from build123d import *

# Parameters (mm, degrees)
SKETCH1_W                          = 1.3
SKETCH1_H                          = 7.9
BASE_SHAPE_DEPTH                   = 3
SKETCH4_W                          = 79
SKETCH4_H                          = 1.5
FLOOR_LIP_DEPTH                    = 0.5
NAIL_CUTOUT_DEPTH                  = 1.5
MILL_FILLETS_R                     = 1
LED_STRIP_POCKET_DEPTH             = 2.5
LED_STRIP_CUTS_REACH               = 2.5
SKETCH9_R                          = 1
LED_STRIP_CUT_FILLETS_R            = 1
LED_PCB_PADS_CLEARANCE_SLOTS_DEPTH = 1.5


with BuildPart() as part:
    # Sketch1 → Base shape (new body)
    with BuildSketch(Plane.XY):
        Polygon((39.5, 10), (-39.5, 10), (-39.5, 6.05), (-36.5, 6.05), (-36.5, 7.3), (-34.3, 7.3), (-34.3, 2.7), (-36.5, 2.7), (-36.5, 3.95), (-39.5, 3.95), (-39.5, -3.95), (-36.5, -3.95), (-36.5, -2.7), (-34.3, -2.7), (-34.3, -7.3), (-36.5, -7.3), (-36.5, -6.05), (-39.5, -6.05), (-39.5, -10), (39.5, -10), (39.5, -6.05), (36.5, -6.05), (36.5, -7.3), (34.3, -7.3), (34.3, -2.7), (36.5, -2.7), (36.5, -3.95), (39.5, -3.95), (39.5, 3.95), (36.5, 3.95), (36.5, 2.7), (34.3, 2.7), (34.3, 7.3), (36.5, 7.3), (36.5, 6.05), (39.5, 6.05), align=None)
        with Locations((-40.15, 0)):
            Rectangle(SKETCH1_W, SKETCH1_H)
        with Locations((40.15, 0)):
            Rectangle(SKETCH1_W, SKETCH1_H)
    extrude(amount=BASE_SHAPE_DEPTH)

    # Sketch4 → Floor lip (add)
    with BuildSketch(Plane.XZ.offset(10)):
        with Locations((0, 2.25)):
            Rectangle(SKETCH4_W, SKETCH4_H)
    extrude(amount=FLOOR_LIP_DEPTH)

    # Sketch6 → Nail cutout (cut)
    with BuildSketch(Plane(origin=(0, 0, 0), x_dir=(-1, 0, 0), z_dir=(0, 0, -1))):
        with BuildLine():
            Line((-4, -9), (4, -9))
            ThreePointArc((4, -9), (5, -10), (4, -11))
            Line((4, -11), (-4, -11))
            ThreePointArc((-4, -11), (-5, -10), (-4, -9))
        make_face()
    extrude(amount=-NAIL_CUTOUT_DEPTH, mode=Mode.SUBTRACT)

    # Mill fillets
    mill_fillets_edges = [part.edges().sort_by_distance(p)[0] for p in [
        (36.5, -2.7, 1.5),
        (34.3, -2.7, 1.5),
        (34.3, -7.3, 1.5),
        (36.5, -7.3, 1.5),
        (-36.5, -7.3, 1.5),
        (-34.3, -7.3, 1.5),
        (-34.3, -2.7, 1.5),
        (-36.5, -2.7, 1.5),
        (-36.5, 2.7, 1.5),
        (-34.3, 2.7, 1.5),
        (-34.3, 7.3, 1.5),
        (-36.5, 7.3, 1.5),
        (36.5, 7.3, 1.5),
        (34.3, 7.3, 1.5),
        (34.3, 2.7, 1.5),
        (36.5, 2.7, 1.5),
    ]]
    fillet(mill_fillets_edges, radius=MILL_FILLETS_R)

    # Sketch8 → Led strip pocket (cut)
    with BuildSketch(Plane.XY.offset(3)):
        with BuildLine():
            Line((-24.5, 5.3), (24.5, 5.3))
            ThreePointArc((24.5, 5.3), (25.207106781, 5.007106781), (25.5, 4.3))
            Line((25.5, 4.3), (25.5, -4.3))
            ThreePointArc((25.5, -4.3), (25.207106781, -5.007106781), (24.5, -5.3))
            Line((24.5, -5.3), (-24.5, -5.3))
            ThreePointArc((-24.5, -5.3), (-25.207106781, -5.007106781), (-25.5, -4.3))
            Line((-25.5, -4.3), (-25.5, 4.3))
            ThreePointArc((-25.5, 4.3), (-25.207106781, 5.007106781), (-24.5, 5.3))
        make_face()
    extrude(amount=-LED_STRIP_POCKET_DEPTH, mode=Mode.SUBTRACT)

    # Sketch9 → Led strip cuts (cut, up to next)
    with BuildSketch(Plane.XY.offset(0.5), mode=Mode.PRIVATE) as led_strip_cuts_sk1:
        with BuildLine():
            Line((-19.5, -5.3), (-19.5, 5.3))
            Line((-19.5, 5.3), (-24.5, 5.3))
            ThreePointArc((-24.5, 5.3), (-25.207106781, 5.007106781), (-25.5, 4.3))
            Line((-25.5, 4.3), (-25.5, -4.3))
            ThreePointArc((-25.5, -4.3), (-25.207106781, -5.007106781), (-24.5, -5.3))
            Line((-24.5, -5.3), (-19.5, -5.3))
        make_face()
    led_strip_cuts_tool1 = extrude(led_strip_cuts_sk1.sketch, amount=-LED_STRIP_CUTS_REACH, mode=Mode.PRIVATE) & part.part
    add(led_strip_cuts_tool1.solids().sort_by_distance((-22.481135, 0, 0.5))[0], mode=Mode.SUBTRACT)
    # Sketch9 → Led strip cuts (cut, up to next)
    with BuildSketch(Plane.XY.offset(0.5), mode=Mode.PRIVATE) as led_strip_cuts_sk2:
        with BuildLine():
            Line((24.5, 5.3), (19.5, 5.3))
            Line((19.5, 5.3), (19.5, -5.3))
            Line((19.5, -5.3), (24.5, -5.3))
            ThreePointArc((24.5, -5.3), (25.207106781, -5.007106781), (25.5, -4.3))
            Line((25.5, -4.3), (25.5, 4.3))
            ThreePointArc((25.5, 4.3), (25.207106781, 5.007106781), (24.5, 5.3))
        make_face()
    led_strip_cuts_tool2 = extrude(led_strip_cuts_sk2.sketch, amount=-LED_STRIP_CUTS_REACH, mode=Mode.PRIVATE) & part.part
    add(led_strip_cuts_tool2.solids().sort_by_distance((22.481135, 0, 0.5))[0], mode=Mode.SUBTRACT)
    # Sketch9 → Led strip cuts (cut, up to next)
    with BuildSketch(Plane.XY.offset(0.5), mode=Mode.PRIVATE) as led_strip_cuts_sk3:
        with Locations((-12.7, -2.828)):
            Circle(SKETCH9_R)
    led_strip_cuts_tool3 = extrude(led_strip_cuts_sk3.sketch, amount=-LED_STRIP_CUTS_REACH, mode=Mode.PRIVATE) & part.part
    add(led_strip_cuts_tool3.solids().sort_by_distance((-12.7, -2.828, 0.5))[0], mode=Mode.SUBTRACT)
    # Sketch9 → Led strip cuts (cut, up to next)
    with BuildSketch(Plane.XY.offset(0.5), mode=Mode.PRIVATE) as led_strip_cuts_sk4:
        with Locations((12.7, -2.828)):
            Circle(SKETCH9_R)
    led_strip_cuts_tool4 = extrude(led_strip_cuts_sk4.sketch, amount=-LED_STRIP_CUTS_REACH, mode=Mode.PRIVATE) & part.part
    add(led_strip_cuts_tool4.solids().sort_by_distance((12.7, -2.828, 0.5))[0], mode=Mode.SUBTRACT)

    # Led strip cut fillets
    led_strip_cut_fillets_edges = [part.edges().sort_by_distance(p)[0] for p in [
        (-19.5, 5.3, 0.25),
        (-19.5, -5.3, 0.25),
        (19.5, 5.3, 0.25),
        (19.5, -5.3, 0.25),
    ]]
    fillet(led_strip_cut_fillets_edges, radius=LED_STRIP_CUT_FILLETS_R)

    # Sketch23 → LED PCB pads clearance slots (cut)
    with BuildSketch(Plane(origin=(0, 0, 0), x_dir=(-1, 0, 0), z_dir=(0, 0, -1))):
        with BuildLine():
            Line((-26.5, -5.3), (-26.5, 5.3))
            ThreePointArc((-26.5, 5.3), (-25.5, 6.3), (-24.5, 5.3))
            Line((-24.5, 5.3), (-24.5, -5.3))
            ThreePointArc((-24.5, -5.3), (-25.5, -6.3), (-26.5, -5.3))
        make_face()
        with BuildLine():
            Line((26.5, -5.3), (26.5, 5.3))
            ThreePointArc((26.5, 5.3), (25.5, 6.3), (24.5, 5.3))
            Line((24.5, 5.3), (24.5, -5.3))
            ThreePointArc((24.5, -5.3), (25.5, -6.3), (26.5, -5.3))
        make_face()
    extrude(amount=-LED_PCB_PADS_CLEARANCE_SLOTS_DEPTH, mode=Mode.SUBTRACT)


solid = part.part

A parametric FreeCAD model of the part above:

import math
import FreeCAD as App
import Part
import Sketcher
from FreeCAD import Vector
Q = App.Units.Quantity


def edges_at(feature, points):
    """Names of the edges that pass closest to the given points."""
    edges = feature.Shape.Edges
    near = lambda p: min(range(len(edges)), key=lambda i: edges[i].distToShape(Part.Vertex(*p))[0])
    return sorted({f"Edge{near(p) + 1}" for p in points})

doc = App.newDocument("Part")
body = doc.addObject("PartDesign::Body", "Body")

sketch1 = body.newObject("Sketcher::SketchObject", "Sketch")
sketch1.AttachmentSupport = (doc.getObject("XY_Plane"), [""])
sketch1.MapMode = "FlatFace"
sketch1.addGeometry([
    Part.LineSegment(Vector(39.5, 10, 0), Vector(-39.5, 10, 0)),
    Part.LineSegment(Vector(-39.5, 10, 0), Vector(-39.5, 6, 0)),
    Part.LineSegment(Vector(-39.5, 6, 0), Vector(-36.5, 6, 0)),
    Part.LineSegment(Vector(-36.5, 6, 0), Vector(-36.5, 7.3, 0)),
    Part.LineSegment(Vector(-36.5, 7.3, 0), Vector(-34.3, 7.3, 0)),
    Part.LineSegment(Vector(-34.3, 7.3, 0), Vector(-34.3, 2.7, 0)),
    Part.LineSegment(Vector(-34.3, 2.7, 0), Vector(-36.5, 2.7, 0)),
    Part.LineSegment(Vector(-36.5, 2.7, 0), Vector(-36.5, 4, 0)),
    Part.LineSegment(Vector(-36.5, 4, 0), Vector(-40.8, 4, 0)),
    Part.LineSegment(Vector(-40.8, 4, 0), Vector(-40.8, -4, 0)),
    Part.LineSegment(Vector(-40.8, -4, 0), Vector(-36.5, -4, 0)),
    Part.LineSegment(Vector(-36.5, -4, 0), Vector(-36.5, -2.7, 0)),
    Part.LineSegment(Vector(-36.5, -2.7, 0), Vector(-34.3, -2.7, 0)),
    Part.LineSegment(Vector(-34.3, -2.7, 0), Vector(-34.3, -7.3, 0)),
    Part.LineSegment(Vector(-34.3, -7.3, 0), Vector(-36.5, -7.3, 0)),
    Part.LineSegment(Vector(-36.5, -7.3, 0), Vector(-36.5, -6, 0)),
    Part.LineSegment(Vector(-36.5, -6, 0), Vector(-39.5, -6, 0)),
    Part.LineSegment(Vector(-39.5, -6, 0), Vector(-39.5, -10, 0)),
    Part.LineSegment(Vector(-39.5, -10, 0), Vector(39.5, -10, 0)),
    Part.LineSegment(Vector(39.5, -10, 0), Vector(39.5, -6, 0)),
    Part.LineSegment(Vector(39.5, -6, 0), Vector(36.5, -6, 0)),
    Part.LineSegment(Vector(36.5, -6, 0), Vector(36.5, -7.3, 0)),
    Part.LineSegment(Vector(36.5, -7.3, 0), Vector(34.3, -7.3, 0)),
    Part.LineSegment(Vector(34.3, -7.3, 0), Vector(34.3, -2.7, 0)),
    Part.LineSegment(Vector(34.3, -2.7, 0), Vector(36.5, -2.7, 0)),
    Part.LineSegment(Vector(36.5, -2.7, 0), Vector(36.5, -4, 0)),
    Part.LineSegment(Vector(36.5, -4, 0), Vector(40.8, -4, 0)),
    Part.LineSegment(Vector(40.8, -4, 0), Vector(40.8, 4, 0)),
    Part.LineSegment(Vector(40.8, 4, 0), Vector(36.5, 4, 0)),
    Part.LineSegment(Vector(36.5, 4, 0), Vector(36.5, 2.7, 0)),
    Part.LineSegment(Vector(36.5, 2.7, 0), Vector(34.3, 2.7, 0)),
    Part.LineSegment(Vector(34.3, 2.7, 0), Vector(34.3, 7.3, 0)),
    Part.LineSegment(Vector(34.3, 7.3, 0), Vector(36.5, 7.3, 0)),
    Part.LineSegment(Vector(36.5, 7.3, 0), Vector(36.5, 6, 0)),
    Part.LineSegment(Vector(36.5, 6, 0), Vector(39.5, 6, 0)),
    Part.LineSegment(Vector(39.5, 6, 0), Vector(39.5, 10, 0)),
], False)
sketch1.addConstraint([
    Sketcher.Constraint("Coincident", 0, 2, 1, 1),
    Sketcher.Constraint("Coincident", 1, 2, 2, 1),
    Sketcher.Constraint("Coincident", 2, 2, 3, 1),
    Sketcher.Constraint("Coincident", 3, 2, 4, 1),
    Sketcher.Constraint("Coincident", 4, 2, 5, 1),
    Sketcher.Constraint("Coincident", 5, 2, 6, 1),
    Sketcher.Constraint("Coincident", 6, 2, 7, 1),
    Sketcher.Constraint("Coincident", 7, 2, 8, 1),
    Sketcher.Constraint("Coincident", 8, 2, 9, 1),
    Sketcher.Constraint("Coincident", 9, 2, 10, 1),
    Sketcher.Constraint("Coincident", 10, 2, 11, 1),
    Sketcher.Constraint("Coincident", 11, 2, 12, 1),
    Sketcher.Constraint("Coincident", 12, 2, 13, 1),
    Sketcher.Constraint("Coincident", 13, 2, 14, 1),
    Sketcher.Constraint("Coincident", 14, 2, 15, 1),
    Sketcher.Constraint("Coincident", 15, 2, 16, 1),
    Sketcher.Constraint("Coincident", 16, 2, 17, 1),
    Sketcher.Constraint("Coincident", 17, 2, 18, 1),
    Sketcher.Constraint("Coincident", 18, 2, 19, 1),
    Sketcher.Constraint("Coincident", 19, 2, 20, 1),
    Sketcher.Constraint("Coincident", 20, 2, 21, 1),
    Sketcher.Constraint("Coincident", 21, 2, 22, 1),
    Sketcher.Constraint("Coincident", 22, 2, 23, 1),
    Sketcher.Constraint("Coincident", 23, 2, 24, 1),
    Sketcher.Constraint("Coincident", 24, 2, 25, 1),
    Sketcher.Constraint("Coincident", 25, 2, 26, 1),
    Sketcher.Constraint("Coincident", 26, 2, 27, 1),
    Sketcher.Constraint("Coincident", 27, 2, 28, 1),
    Sketcher.Constraint("Coincident", 28, 2, 29, 1),
    Sketcher.Constraint("Coincident", 29, 2, 30, 1),
    Sketcher.Constraint("Coincident", 30, 2, 31, 1),
    Sketcher.Constraint("Coincident", 31, 2, 32, 1),
    Sketcher.Constraint("Coincident", 32, 2, 33, 1),
    Sketcher.Constraint("Coincident", 33, 2, 34, 1),
    Sketcher.Constraint("Coincident", 34, 2, 35, 1),
    Sketcher.Constraint("Coincident", 35, 2, 0, 1),
    Sketcher.Constraint("Horizontal", 0),
    Sketcher.Constraint("Vertical", 1),
    Sketcher.Constraint("Horizontal", 2),
    Sketcher.Constraint("Vertical", 3),
    Sketcher.Constraint("Horizontal", 4),
    Sketcher.Constraint("Vertical", 5),
    Sketcher.Constraint("Horizontal", 6),
    Sketcher.Constraint("Vertical", 7),
    Sketcher.Constraint("Horizontal", 8),
    Sketcher.Constraint("Vertical", 9),
    Sketcher.Constraint("Horizontal", 10),
    Sketcher.Constraint("Vertical", 11),
    Sketcher.Constraint("Horizontal", 12),
    Sketcher.Constraint("Vertical", 13),
    Sketcher.Constraint("Horizontal", 14),
    Sketcher.Constraint("Vertical", 15),
    Sketcher.Constraint("Horizontal", 16),
    Sketcher.Constraint("Vertical", 17),
    Sketcher.Constraint("Horizontal", 18),
    Sketcher.Constraint("Vertical", 19),
    Sketcher.Constraint("Horizontal", 20),
    Sketcher.Constraint("Vertical", 21),
    Sketcher.Constraint("Horizontal", 22),
    Sketcher.Constraint("Vertical", 23),
    Sketcher.Constraint("Horizontal", 24),
    Sketcher.Constraint("Vertical", 25),
    Sketcher.Constraint("Horizontal", 26),
    Sketcher.Constraint("Vertical", 27),
    Sketcher.Constraint("Horizontal", 28),
    Sketcher.Constraint("Vertical", 29),
    Sketcher.Constraint("Horizontal", 30),
    Sketcher.Constraint("Vertical", 31),
    Sketcher.Constraint("Horizontal", 32),
    Sketcher.Constraint("Vertical", 33),
    Sketcher.Constraint("Horizontal", 34),
    Sketcher.Constraint("Vertical", 35),
    Sketcher.Constraint("Symmetric", 0, 2, 18, 2, -1, 1),
    Sketcher.Constraint("Symmetric", 2, 2, 20, 2, -1, 1),
    Sketcher.Constraint("Symmetric", 4, 2, 22, 2, -1, 1),
    Sketcher.Constraint("Symmetric", 6, 2, 24, 2, -1, 1),
    Sketcher.Constraint("Symmetric", 8, 2, 26, 2, -1, 1),
    Sketcher.Constraint("Symmetric", 10, 2, 28, 2, -1, 1),
    Sketcher.Constraint("Symmetric", 12, 2, 30, 2, -1, 1),
    Sketcher.Constraint("Symmetric", 14, 2, 32, 2, -1, 1),
    Sketcher.Constraint("Symmetric", 16, 2, 34, 2, -1, 1),
    Sketcher.Constraint("Symmetric", 16, 2, 19, 2, -2),
    Sketcher.Constraint("Symmetric", 14, 2, 21, 2, -2),
    Sketcher.Constraint("Symmetric", 12, 2, 23, 2, -2),
    Sketcher.Constraint("Symmetric", 10, 2, 25, 2, -2),
    Sketcher.Constraint("Vertical", 3, 2, 6, 2),
    Sketcher.Constraint("Equal", 3, 7),
    Sketcher.Constraint("DistanceX", 0, 2, 0, 1, Q("79 mm")),
    Sketcher.Constraint("DistanceX", 2, 1, 2, 2, Q("3 mm")),
    Sketcher.Constraint("DistanceX", 4, 1, 4, 2, Q("2.2 mm")),
    Sketcher.Constraint("DistanceX", 8, 2, 8, 1, Q("4.3 mm")),
    Sketcher.Constraint("DistanceY", 5, 2, 5, 1, Q("4.6 mm")),
    Sketcher.Constraint("DistanceY", 9, 2, 9, 1, Q("7.9 mm")),
    Sketcher.Constraint("DistanceY", -1, 1, 0, 2, Q("10 mm")),
    Sketcher.Constraint("DistanceY", 9, 2, 1, 2, Q("10 mm")),
])
pad1 = body.newObject("PartDesign::Pad", "Pad")
pad1.Profile = sketch1
pad1.Length = 3

sketch2 = body.newObject("Sketcher::SketchObject", "Sketch001")
sketch2.AttachmentSupport = (doc.getObject("XZ_Plane"), [""])
sketch2.MapMode = "FlatFace"
sketch2.AttachmentOffset = App.Placement(Vector(0, 0, 10), App.Rotation())
sketch2.addGeometry([
    Part.LineSegment(Vector(-39.5, 3, 0), Vector(-39.5, 1.5, 0)),
    Part.LineSegment(Vector(-39.5, 1.5, 0), Vector(39.5, 1.5, 0)),
    Part.LineSegment(Vector(39.5, 1.5, 0), Vector(39.5, 3, 0)),
    Part.LineSegment(Vector(39.5, 3, 0), Vector(-39.5, 3, 0)),
], False)
sketch2.addConstraint([
    Sketcher.Constraint("Coincident", 0, 2, 1, 1),
    Sketcher.Constraint("Coincident", 1, 2, 2, 1),
    Sketcher.Constraint("Coincident", 2, 2, 3, 1),
    Sketcher.Constraint("Coincident", 3, 2, 0, 1),
    Sketcher.Constraint("Vertical", 0),
    Sketcher.Constraint("Horizontal", 1),
    Sketcher.Constraint("Vertical", 2),
    Sketcher.Constraint("Horizontal", 3),
    Sketcher.Constraint("DistanceX", 1, 1, 1, 2, Q("79 mm")),
    Sketcher.Constraint("DistanceY", 0, 2, 0, 1, Q("1.5 mm")),
    Sketcher.Constraint("DistanceY", -1, 1, 2, 2, Q("3 mm")),
    Sketcher.Constraint("DistanceX", 0, 2, -1, 1, Q("39.5 mm")),
])
pad2 = body.newObject("PartDesign::Pad", "Pad001")
pad2.Profile = sketch2
pad2.Length = 0.5

sketch3 = body.newObject("Sketcher::SketchObject", "Sketch002")
sketch3.AttachmentSupport = (doc.getObject("XY_Plane"), [""])
sketch3.MapMode = "FlatFace"
sketch3.addGeometry([
    Part.LineSegment(Vector(-4, -9, 0), Vector(4, -9, 0)),
    Part.ArcOfCircle(Part.Circle(Vector(4, -10, 0), Vector(0, 0, 1), 1), math.radians(-90), math.radians(90)),
    Part.LineSegment(Vector(4, -11, 0), Vector(-4, -11, 0)),
    Part.ArcOfCircle(Part.Circle(Vector(-4, -10, 0), Vector(0, 0, 1), 1), math.radians(90), math.radians(270)),
], False)
sketch3.addConstraint([
    Sketcher.Constraint("Tangent", 0, 2, 1, 2),
    Sketcher.Constraint("Tangent", 1, 1, 2, 1),
    Sketcher.Constraint("Tangent", 2, 2, 3, 2),
    Sketcher.Constraint("Tangent", 3, 1, 0, 1),
    Sketcher.Constraint("Horizontal", 0),
    Sketcher.Constraint("Horizontal", 2),
    Sketcher.Constraint("Radius", 1, Q("1 mm")),
    Sketcher.Constraint("DistanceX", 0, 1, 0, 2, Q("8 mm")),
    Sketcher.Constraint("DistanceX", -1, 1, 1, 3, Q("4 mm")),
    Sketcher.Constraint("DistanceY", 1, 3, -1, 1, Q("10 mm")),
])
pocket1 = body.newObject("PartDesign::Pocket", "Pocket")
pocket1.Profile = sketch3
pocket1.Length = 1.5
pocket1.Reversed = True
doc.recompute()

fillet = body.newObject("PartDesign::Fillet", "Fillet")
fillet.Base = (pocket1, edges_at(pocket1, [
    (36.5, -2.7, 1.5),
    (34.3, -2.7, 1.5),
    (34.3, -7.3, 1.5),
    (36.5, -7.3, 1.5),
    (-36.5, -7.3, 1.5),
    (-34.3, -7.3, 1.5),
    (-34.3, -2.7, 1.5),
    (-36.5, -2.7, 1.5),
    (-36.5, 2.7, 1.5),
    (-34.3, 2.7, 1.5),
    (-34.3, 7.3, 1.5),
    (-36.5, 7.3, 1.5),
    (36.5, 7.3, 1.5),
    (34.3, 7.3, 1.5),
    (34.3, 2.7, 1.5),
    (36.5, 2.7, 1.5),
]))
fillet.Radius = 1

sketch4 = body.newObject("Sketcher::SketchObject", "Sketch003")
sketch4.AttachmentSupport = (doc.getObject("XY_Plane"), [""])
sketch4.MapMode = "FlatFace"
sketch4.AttachmentOffset = App.Placement(Vector(0, 0, 3), App.Rotation())
sketch4.addGeometry([
    Part.LineSegment(Vector(24.5, 5.3, 0), Vector(-24.5, 5.3, 0)),
    Part.ArcOfCircle(Part.Circle(Vector(-24.5, 4.3, 0), Vector(0, 0, 1), 1), math.radians(90), math.radians(180)),
    Part.LineSegment(Vector(-25.5, 4.3, 0), Vector(-25.5, -4.3, 0)),
    Part.ArcOfCircle(Part.Circle(Vector(-24.5, -4.3, 0), Vector(0, 0, 1), 1), math.radians(-180), math.radians(-90)),
    Part.LineSegment(Vector(-24.5, -5.3, 0), Vector(24.5, -5.3, 0)),
    Part.ArcOfCircle(Part.Circle(Vector(24.5, -4.3, 0), Vector(0, 0, 1), 1), math.radians(-90), math.radians(0)),
    Part.LineSegment(Vector(25.5, -4.3, 0), Vector(25.5, 4.3, 0)),
    Part.ArcOfCircle(Part.Circle(Vector(24.5, 4.3, 0), Vector(0, 0, 1), 1), math.radians(0), math.radians(90)),
], False)
sketch4.addConstraint([
    Sketcher.Constraint("Tangent", 0, 2, 1, 1),
    Sketcher.Constraint("Tangent", 1, 2, 2, 1),
    Sketcher.Constraint("Tangent", 2, 2, 3, 1),
    Sketcher.Constraint("Tangent", 3, 2, 4, 1),
    Sketcher.Constraint("Tangent", 4, 2, 5, 1),
    Sketcher.Constraint("Tangent", 5, 2, 6, 1),
    Sketcher.Constraint("Tangent", 6, 2, 7, 1),
    Sketcher.Constraint("Tangent", 7, 2, 0, 1),
    Sketcher.Constraint("Horizontal", 0),
    Sketcher.Constraint("Vertical", 2),
    Sketcher.Constraint("Horizontal", 4),
    Sketcher.Constraint("Vertical", 6),
    Sketcher.Constraint("Equal", 1, 3),
    Sketcher.Constraint("Equal", 3, 5),
    Sketcher.Constraint("Equal", 5, 7),
    Sketcher.Constraint("Symmetric", 1, 3, 5, 3, -1, 1),
    Sketcher.Constraint("Radius", 1, Q("1 mm")),
    Sketcher.Constraint("DistanceX", 0, 2, 0, 1, Q("49 mm")),
    Sketcher.Constraint("DistanceY", 2, 2, 2, 1, Q("8.6 mm")),
])
pocket2 = body.newObject("PartDesign::Pocket", "Pocket001")
pocket2.Profile = sketch4
pocket2.Length = 2.5

sketch5 = body.newObject("Sketcher::SketchObject", "Sketch004")
sketch5.AttachmentSupport = (doc.getObject("XY_Plane"), [""])
sketch5.MapMode = "FlatFace"
sketch5.AttachmentOffset = App.Placement(Vector(0, 0, 0.5), App.Rotation())
sketch5.addGeometry([
    Part.LineSegment(Vector(-19.5, -5.3, 0), Vector(-19.5, 5.3, 0)),
    Part.LineSegment(Vector(-19.5, 5.3, 0), Vector(-24.5, 5.3, 0)),
    Part.ArcOfCircle(Part.Circle(Vector(-24.5, 4.3, 0), Vector(0, 0, 1), 1), math.radians(90), math.radians(180)),
    Part.LineSegment(Vector(-25.5, 4.3, 0), Vector(-25.5, -4.3, 0)),
    Part.ArcOfCircle(Part.Circle(Vector(-24.5, -4.3, 0), Vector(0, 0, 1), 1), math.radians(-180), math.radians(-90)),
    Part.LineSegment(Vector(-24.5, -5.3, 0), Vector(-19.5, -5.3, 0)),
], False)
sketch5.addConstraint([
    Sketcher.Constraint("Coincident", 0, 2, 1, 1),
    Sketcher.Constraint("Tangent", 1, 2, 2, 1),
    Sketcher.Constraint("Tangent", 2, 2, 3, 1),
    Sketcher.Constraint("Tangent", 3, 2, 4, 1),
    Sketcher.Constraint("Tangent", 4, 2, 5, 1),
    Sketcher.Constraint("Coincident", 5, 2, 0, 1),
    Sketcher.Constraint("Vertical", 0),
    Sketcher.Constraint("Horizontal", 1),
    Sketcher.Constraint("Vertical", 3),
    Sketcher.Constraint("Horizontal", 5),
    Sketcher.Constraint("Equal", 2, 4),
    Sketcher.Constraint("Radius", 2, Q("1 mm")),
    Sketcher.Constraint("DistanceX", 1, 2, 1, 1, Q("5 mm")),
    Sketcher.Constraint("DistanceY", 0, 1, 0, 2, Q("10.6 mm")),
    Sketcher.Constraint("DistanceX", 2, 3, -1, 1, Q("24.5 mm")),
    Sketcher.Constraint("DistanceY", -1, 1, 2, 3, Q("4.3 mm")),
])
pocket3 = body.newObject("PartDesign::Pocket", "Pocket002")
pocket3.Profile = sketch5
pocket3.Type = "UpToFirst"

sketch6 = body.newObject("Sketcher::SketchObject", "Sketch005")
sketch6.AttachmentSupport = (doc.getObject("XY_Plane"), [""])
sketch6.MapMode = "FlatFace"
sketch6.AttachmentOffset = App.Placement(Vector(0, 0, 0.5), App.Rotation())
sketch6.addGeometry([
    Part.LineSegment(Vector(24.5, 5.3, 0), Vector(19.5, 5.3, 0)),
    Part.LineSegment(Vector(19.5, 5.3, 0), Vector(19.5, -5.3, 0)),
    Part.LineSegment(Vector(19.5, -5.3, 0), Vector(24.5, -5.3, 0)),
    Part.ArcOfCircle(Part.Circle(Vector(24.5, -4.3, 0), Vector(0, 0, 1), 1), math.radians(-90), math.radians(0)),
    Part.LineSegment(Vector(25.5, -4.3, 0), Vector(25.5, 4.3, 0)),
    Part.ArcOfCircle(Part.Circle(Vector(24.5, 4.3, 0), Vector(0, 0, 1), 1), math.radians(0), math.radians(90)),
], False)
sketch6.addConstraint([
    Sketcher.Constraint("Coincident", 0, 2, 1, 1),
    Sketcher.Constraint("Coincident", 1, 2, 2, 1),
    Sketcher.Constraint("Tangent", 2, 2, 3, 1),
    Sketcher.Constraint("Tangent", 3, 2, 4, 1),
    Sketcher.Constraint("Tangent", 4, 2, 5, 1),
    Sketcher.Constraint("Tangent", 5, 2, 0, 1),
    Sketcher.Constraint("Horizontal", 0),
    Sketcher.Constraint("Vertical", 1),
    Sketcher.Constraint("Horizontal", 2),
    Sketcher.Constraint("Vertical", 4),
    Sketcher.Constraint("Equal", 3, 5),
    Sketcher.Constraint("Radius", 3, Q("1 mm")),
    Sketcher.Constraint("DistanceX", 0, 2, 0, 1, Q("5 mm")),
    Sketcher.Constraint("DistanceY", 1, 2, 1, 1, Q("10.6 mm")),
    Sketcher.Constraint("DistanceX", -1, 1, 3, 3, Q("24.5 mm")),
    Sketcher.Constraint("DistanceY", 3, 3, -1, 1, Q("4.3 mm")),
])
pocket4 = body.newObject("PartDesign::Pocket", "Pocket003")
pocket4.Profile = sketch6
pocket4.Type = "UpToFirst"

sketch7 = body.newObject("Sketcher::SketchObject", "Sketch006")
sketch7.AttachmentSupport = (doc.getObject("XY_Plane"), [""])
sketch7.MapMode = "FlatFace"
sketch7.AttachmentOffset = App.Placement(Vector(0, 0, 0.5), App.Rotation())
sketch7.addGeometry(Part.Circle(Vector(-12.7, -2.8, 0), Vector(0, 0, 1), 1), False)
sketch7.addConstraint([
    Sketcher.Constraint("Diameter", 0, Q("2 mm")),
    Sketcher.Constraint("DistanceX", 0, 3, -1, 1, Q("12.7 mm")),
    Sketcher.Constraint("DistanceY", 0, 3, -1, 1, Q("2.828 mm")),
])
pocket5 = body.newObject("PartDesign::Pocket", "Pocket004")
pocket5.Profile = sketch7
pocket5.Type = "UpToFirst"

sketch8 = body.newObject("Sketcher::SketchObject", "Sketch007")
sketch8.AttachmentSupport = (doc.getObject("XY_Plane"), [""])
sketch8.MapMode = "FlatFace"
sketch8.AttachmentOffset = App.Placement(Vector(0, 0, 0.5), App.Rotation())
sketch8.addGeometry(Part.Circle(Vector(12.7, -2.8, 0), Vector(0, 0, 1), 1), False)
sketch8.addConstraint([
    Sketcher.Constraint("Diameter", 0, Q("2 mm")),
    Sketcher.Constraint("DistanceX", -1, 1, 0, 3, Q("12.7 mm")),
    Sketcher.Constraint("DistanceY", 0, 3, -1, 1, Q("2.828 mm")),
])
pocket6 = body.newObject("PartDesign::Pocket", "Pocket005")
pocket6.Profile = sketch8
pocket6.Type = "UpToFirst"
doc.recompute()

fillet2 = body.newObject("PartDesign::Fillet", "Fillet001")
fillet2.Base = (pocket6, edges_at(pocket6, [
    (-19.5, 5.3, 0.25),
    (-19.5, -5.3, 0.25),
    (19.5, 5.3, 0.25),
    (19.5, -5.3, 0.25),
]))
fillet2.Radius = 1

sketch9 = body.newObject("Sketcher::SketchObject", "Sketch008")
sketch9.AttachmentSupport = (doc.getObject("XY_Plane"), [""])
sketch9.MapMode = "FlatFace"
sketch9.addGeometry([
    Part.LineSegment(Vector(26.5, 5.3, 0), Vector(26.5, -5.3, 0)),
    Part.ArcOfCircle(Part.Circle(Vector(25.5, -5.3, 0), Vector(0, 0, 1), 1), math.radians(180), math.radians(360)),
    Part.LineSegment(Vector(24.5, -5.3, 0), Vector(24.5, 5.3, 0)),
    Part.ArcOfCircle(Part.Circle(Vector(25.5, 5.3, 0), Vector(0, 0, 1), 1), math.radians(0), math.radians(180)),
    Part.LineSegment(Vector(-26.5, -5.3, 0), Vector(-26.5, 5.3, 0)),
    Part.ArcOfCircle(Part.Circle(Vector(-25.5, 5.3, 0), Vector(0, 0, 1), 1), math.radians(0), math.radians(180)),
    Part.LineSegment(Vector(-24.5, 5.3, 0), Vector(-24.5, -5.3, 0)),
    Part.ArcOfCircle(Part.Circle(Vector(-25.5, -5.3, 0), Vector(0, 0, 1), 1), math.radians(180), math.radians(360)),
], False)
sketch9.addConstraint([
    Sketcher.Constraint("Tangent", 0, 2, 1, 2),
    Sketcher.Constraint("Tangent", 1, 1, 2, 1),
    Sketcher.Constraint("Tangent", 2, 2, 3, 2),
    Sketcher.Constraint("Tangent", 3, 1, 0, 1),
    Sketcher.Constraint("Tangent", 4, 2, 5, 2),
    Sketcher.Constraint("Tangent", 5, 1, 6, 1),
    Sketcher.Constraint("Tangent", 6, 2, 7, 2),
    Sketcher.Constraint("Tangent", 7, 1, 4, 1),
    Sketcher.Constraint("Vertical", 0),
    Sketcher.Constraint("Vertical", 2),
    Sketcher.Constraint("Vertical", 4),
    Sketcher.Constraint("Vertical", 6),
    Sketcher.Constraint("Equal", 3, 5),
    Sketcher.Constraint("Symmetric", 1, 3, 5, 3, -1, 1),
    Sketcher.Constraint("Horizontal", 3, 3, 5, 3),
    Sketcher.Constraint("Horizontal", 1, 3, 7, 3),
    Sketcher.Constraint("Radius", 1, Q("1 mm")),
    Sketcher.Constraint("DistanceY", 0, 2, 0, 1, Q("10.6 mm")),
    Sketcher.Constraint("DistanceX", 5, 3, 3, 3, Q("51 mm")),
])
pocket7 = body.newObject("PartDesign::Pocket", "Pocket006")
pocket7.Profile = sketch9
pocket7.Length = 1.5
pocket7.Reversed = True

doc.recompute()
